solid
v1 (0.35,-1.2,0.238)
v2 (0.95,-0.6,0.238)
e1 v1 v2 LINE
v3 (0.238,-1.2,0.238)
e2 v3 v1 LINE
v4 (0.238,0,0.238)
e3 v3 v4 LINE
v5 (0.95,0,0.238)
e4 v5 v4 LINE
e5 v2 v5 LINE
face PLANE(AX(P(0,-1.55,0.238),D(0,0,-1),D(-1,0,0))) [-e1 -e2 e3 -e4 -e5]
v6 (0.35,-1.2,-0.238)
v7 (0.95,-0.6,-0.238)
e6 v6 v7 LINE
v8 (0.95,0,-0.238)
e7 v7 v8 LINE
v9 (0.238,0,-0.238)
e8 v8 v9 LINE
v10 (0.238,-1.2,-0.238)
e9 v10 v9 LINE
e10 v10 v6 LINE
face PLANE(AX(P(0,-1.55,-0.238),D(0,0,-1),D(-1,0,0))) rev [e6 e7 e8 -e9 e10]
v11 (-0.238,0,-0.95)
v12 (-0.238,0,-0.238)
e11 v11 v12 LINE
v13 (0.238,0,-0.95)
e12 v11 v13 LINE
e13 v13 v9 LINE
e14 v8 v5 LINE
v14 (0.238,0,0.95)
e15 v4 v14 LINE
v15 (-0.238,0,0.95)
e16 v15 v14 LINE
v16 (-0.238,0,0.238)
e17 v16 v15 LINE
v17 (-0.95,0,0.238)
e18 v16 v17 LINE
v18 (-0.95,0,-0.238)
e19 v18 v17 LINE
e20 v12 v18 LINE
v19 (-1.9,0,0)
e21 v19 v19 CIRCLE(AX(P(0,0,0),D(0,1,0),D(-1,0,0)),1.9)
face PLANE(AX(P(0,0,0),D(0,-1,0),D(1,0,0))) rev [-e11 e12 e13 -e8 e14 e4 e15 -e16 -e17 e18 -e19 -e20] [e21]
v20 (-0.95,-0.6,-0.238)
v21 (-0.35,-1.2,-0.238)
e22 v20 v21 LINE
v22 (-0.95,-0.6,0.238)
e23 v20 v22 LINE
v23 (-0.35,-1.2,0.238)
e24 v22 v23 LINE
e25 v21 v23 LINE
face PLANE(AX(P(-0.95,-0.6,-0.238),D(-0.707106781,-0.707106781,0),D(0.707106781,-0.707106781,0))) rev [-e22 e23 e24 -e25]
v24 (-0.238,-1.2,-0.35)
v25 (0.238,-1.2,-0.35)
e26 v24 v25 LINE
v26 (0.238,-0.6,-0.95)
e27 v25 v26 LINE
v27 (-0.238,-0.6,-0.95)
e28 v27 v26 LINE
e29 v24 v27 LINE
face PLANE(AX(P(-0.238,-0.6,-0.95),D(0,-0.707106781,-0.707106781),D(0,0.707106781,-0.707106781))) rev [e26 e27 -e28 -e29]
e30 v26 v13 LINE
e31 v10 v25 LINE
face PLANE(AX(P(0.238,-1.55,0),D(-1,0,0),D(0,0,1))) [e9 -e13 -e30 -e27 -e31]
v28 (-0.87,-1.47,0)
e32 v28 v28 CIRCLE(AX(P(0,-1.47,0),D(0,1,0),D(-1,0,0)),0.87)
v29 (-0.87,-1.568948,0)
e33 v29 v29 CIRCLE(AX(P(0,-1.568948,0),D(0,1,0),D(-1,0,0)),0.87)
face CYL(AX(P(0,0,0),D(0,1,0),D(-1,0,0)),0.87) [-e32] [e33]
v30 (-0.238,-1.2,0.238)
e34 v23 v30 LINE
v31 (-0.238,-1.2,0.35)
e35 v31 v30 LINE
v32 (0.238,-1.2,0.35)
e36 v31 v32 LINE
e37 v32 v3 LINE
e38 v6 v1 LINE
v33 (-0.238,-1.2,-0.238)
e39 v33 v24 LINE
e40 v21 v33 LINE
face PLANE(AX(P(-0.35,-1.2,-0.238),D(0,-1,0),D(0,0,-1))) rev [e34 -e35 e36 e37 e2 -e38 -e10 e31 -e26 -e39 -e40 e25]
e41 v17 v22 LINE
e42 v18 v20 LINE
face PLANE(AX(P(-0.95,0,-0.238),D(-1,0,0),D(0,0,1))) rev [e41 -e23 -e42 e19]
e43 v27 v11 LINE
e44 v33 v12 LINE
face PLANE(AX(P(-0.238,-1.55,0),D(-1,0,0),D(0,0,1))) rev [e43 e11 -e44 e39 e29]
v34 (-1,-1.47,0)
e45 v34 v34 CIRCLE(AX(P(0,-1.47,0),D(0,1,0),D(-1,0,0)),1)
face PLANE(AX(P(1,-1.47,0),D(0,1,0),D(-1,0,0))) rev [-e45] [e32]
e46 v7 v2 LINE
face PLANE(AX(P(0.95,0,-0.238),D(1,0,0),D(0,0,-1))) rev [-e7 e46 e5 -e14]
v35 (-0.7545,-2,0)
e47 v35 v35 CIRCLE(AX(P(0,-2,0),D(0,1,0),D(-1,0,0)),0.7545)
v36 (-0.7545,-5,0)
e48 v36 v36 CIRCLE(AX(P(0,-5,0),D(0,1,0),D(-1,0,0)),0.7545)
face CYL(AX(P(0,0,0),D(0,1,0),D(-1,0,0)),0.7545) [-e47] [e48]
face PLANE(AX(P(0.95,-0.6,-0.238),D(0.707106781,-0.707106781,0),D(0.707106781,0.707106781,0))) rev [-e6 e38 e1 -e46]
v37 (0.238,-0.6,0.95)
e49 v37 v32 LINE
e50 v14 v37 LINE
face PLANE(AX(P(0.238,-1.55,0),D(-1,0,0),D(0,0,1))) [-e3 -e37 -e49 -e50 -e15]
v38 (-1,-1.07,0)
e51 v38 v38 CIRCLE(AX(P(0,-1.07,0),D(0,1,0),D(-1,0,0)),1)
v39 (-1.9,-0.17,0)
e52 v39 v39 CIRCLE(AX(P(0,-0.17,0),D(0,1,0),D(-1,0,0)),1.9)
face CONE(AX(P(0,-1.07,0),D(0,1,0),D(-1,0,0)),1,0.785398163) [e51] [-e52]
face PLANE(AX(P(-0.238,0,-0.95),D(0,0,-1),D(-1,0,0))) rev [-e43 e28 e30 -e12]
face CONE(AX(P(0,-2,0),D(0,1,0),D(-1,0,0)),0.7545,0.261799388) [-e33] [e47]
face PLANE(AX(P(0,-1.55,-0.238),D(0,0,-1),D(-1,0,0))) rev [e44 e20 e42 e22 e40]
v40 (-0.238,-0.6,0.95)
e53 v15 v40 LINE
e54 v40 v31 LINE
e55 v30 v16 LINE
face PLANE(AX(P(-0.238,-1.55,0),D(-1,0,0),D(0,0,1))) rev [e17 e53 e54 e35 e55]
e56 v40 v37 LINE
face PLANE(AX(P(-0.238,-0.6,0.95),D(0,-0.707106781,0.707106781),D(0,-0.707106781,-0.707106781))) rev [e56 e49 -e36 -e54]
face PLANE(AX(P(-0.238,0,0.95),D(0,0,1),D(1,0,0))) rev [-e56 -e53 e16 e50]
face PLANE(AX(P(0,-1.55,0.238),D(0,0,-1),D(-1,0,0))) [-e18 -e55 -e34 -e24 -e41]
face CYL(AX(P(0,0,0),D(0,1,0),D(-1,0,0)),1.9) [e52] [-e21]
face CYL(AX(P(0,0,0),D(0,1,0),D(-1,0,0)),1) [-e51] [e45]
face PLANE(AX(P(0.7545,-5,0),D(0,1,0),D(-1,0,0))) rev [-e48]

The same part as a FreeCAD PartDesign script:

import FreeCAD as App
import Part
import Sketcher
from FreeCAD import Vector
Q = App.Units.Quantity

doc = App.newDocument("Part")
body = doc.addObject("PartDesign::Body", "Body")

sketch1 = body.newObject("Sketcher::SketchObject", "Sketch")
sketch1.AttachmentSupport = (doc.getObject("XY_Plane"), [""])
sketch1.MapMode = "FlatFace"
sketch1.addGeometry(Part.LineSegment(Vector(1.9, 0, 0), Vector(0, 0, 0)), False)
sketch1.addGeometry(Part.LineSegment(Vector(0, 0, 0), Vector(0, -5, 0)), False)
sketch1.addGeometry(Part.LineSegment(Vector(0, -5, 0), Vector(0.75, -5, 0)), False)
sketch1.addGeometry(Part.LineSegment(Vector(0.75, -5, 0), Vector(0.75, -2, 0)), False)
sketch1.addGeometry(Part.LineSegment(Vector(0.75, -2, 0), Vector(0.87, -1.57, 0)), False)
sketch1.addGeometry(Part.LineSegment(Vector(0.87, -1.57, 0), Vector(0.87, -1.47, 0)), False)
sketch1.addGeometry(Part.LineSegment(Vector(0.87, -1.47, 0), Vector(1, -1.47, 0)), False)
sketch1.addGeometry(Part.LineSegment(Vector(1, -1.47, 0), Vector(1, -1.07, 0)), False)
sketch1.addGeometry(Part.LineSegment(Vector(1, -1.07, 0), Vector(1.9, -0.17, 0)), False)
sketch1.addGeometry(Part.LineSegment(Vector(1.9, -0.17, 0), Vector(1.9, 0, 0)), False)
sketch1.addConstraint(Sketcher.Constraint("Coincident", 0, 2, 1, 1))
sketch1.addConstraint(Sketcher.Constraint("Coincident", 1, 2, 2, 1))
sketch1.addConstraint(Sketcher.Constraint("Coincident", 2, 2, 3, 1))
sketch1.addConstraint(Sketcher.Constraint("Coincident", 3, 2, 4, 1))
sketch1.addConstraint(Sketcher.Constraint("Coincident", 4, 2, 5, 1))
sketch1.addConstraint(Sketcher.Constraint("Coincident", 5, 2, 6, 1))
sketch1.addConstraint(Sketcher.Constraint("Coincident", 6, 2, 7, 1))
sketch1.addConstraint(Sketcher.Constraint("Coincident", 7, 2, 8, 1))
sketch1.addConstraint(Sketcher.Constraint("Coincident", 8, 2, 9, 1))
sketch1.addConstraint(Sketcher.Constraint("Coincident", 9, 2, 0, 1))
sketch1.addConstraint(Sketcher.Constraint("Horizontal", 0))
sketch1.addConstraint(Sketcher.Constraint("Vertical", 1))
sketch1.addConstraint(Sketcher.Constraint("Horizontal", 2))
sketch1.addConstraint(Sketcher.Constraint("Vertical", 3))
sketch1.addConstraint(Sketcher.Constraint("Vertical", 5))
sketch1.addConstraint(Sketcher.Constraint("Horizontal", 6))
sketch1.addConstraint(Sketcher.Constraint("Vertical", 7))
sketch1.addConstraint(Sketcher.Constraint("Vertical", 9))
sketch1.addConstraint(Sketcher.Constraint("Coincident", 0, 2, -1, 1))
sketch1.addConstraint(Sketcher.Constraint("DistanceY", 1, 2, 1, 1, Q("5 mm")))
sketch1.addConstraint(Sketcher.Constraint("DistanceY", 3, 1, 3, 2, Q("3 mm")))
sketch1.addConstraint(Sketcher.Constraint("Angle", 4, Q("75 deg")))
sketch1.addConstraint(Sketcher.Constraint("Angle", 8, Q("45 deg")))
sketch1.addConstraint(Sketcher.Constraint("DistanceX", 0, 2, 0, 1, Q("1.9 mm")))
sketch1.addConstraint(Sketcher.Constraint("DistanceY", 7, 1, 7, 2, Q("0.4 mm")))
sketch1.addConstraint(Sketcher.Constraint("DistanceX", -1, 1, 6, 2, Q("1 mm")))
sketch1.addConstraint(Sketcher.Constraint("DistanceX", 6, 1, 6, 2, Q("0.13 mm")))
sketch1.addConstraint(Sketcher.Constraint("DistanceY", 9, 1, 9, 2, Q("0.17 mm")))
sketch1.addConstraint(Sketcher.Constraint("DistanceX", 2, 1, 2, 2, Q("0.7545 mm")))
revolution = body.newObject("PartDesign::Revolution", "Revolution")
revolution.Profile = sketch1
revolution.ReferenceAxis = (sketch1, ["V_Axis"])
revolution.Angle = 360

sketch2 = body.newObject("Sketcher::SketchObject", "Sketch001")
sketch2.AttachmentSupport = (doc.getObject("XY_Plane"), [""])
sketch2.MapMode = "FlatFace"
sketch2.addGeometry(Part.LineSegment(Vector(-0.3, -1.2, 0), Vector(0.3, -1.2, 0)), False)
sketch2.addGeometry(Part.LineSegment(Vector(0.3, -1.2, 0), Vector(0.9, -0.6, 0)), False)
sketch2.addGeometry(Part.LineSegment(Vector(0.9, -0.6, 0), Vector(0.9, 0, 0)), False)
sketch2.addGeometry(Part.LineSegment(Vector(0.9, 0, 0), Vector(-0.9, 0, 0)), False)
sketch2.addGeometry(Part.LineSegment(Vector(-0.9, 0, 0), Vector(-0.9, -0.6, 0)), False)
sketch2.addGeometry(Part.LineSegment(Vector(-0.9, -0.6, 0), Vector(-0.3, -1.2, 0)), False)
sketch2.addConstraint(Sketcher.Constraint("Coincident", 0, 2, 1, 1))
sketch2.addConstraint(Sketcher.Constraint("Coincident", 1, 2, 2, 1))
sketch2.addConstraint(Sketcher.Constraint("Coincident", 2, 2, 3, 1))
sketch2.addConstraint(Sketcher.Constraint("Coincident", 3, 2, 4, 1))
sketch2.addConstraint(Sketcher.Constraint("Coincident", 4, 2, 5, 1))
sketch2.addConstraint(Sketcher.Constraint("Coincident", 5, 2, 0, 1))
sketch2.addConstraint(Sketcher.Constraint("Horizontal", 0))
sketch2.addConstraint(Sketcher.Constraint("Vertical", 2))
sketch2.addConstraint(Sketcher.Constraint("Horizontal", 3))
sketch2.addConstraint(Sketcher.Constraint("Vertical", 4))
sketch2.addConstraint(Sketcher.Constraint("Symmetric", 2, 2, 3, 2, -1, 1))
sketch2.addConstraint(Sketcher.Constraint("Perpendicular", 1, 5))
sketch2.addConstraint(Sketcher.Constraint("Horizontal", 1, 2, 4, 2))
sketch2.addConstraint(Sketcher.Constraint("Equal", 1, 5))
sketch2.addConstraint(Sketcher.Constraint("DistanceX", 0, 1, 0, 2, Q("0.7 mm")))
sketch2.addConstraint(Sketcher.Constraint("DistanceX", 3, 2, 3, 1, Q("1.9 mm")))
sketch2.addConstraint(Sketcher.Constraint("DistanceY", 2, 1, 2, 2, Q("0.6 mm")))
pocket1 = body.newObject("PartDesign::Pocket", "Pocket")
pocket1.Profile = sketch2
pocket1.Type = "TwoLengths"
pocket1.Length = 0.238
pocket1.Length2 = 0.238
pocket1.Reversed = True

sketch3 = body.newObject("Sketcher::SketchObject", "Sketch002")
sketch3.AttachmentSupport = (doc.getObject("YZ_Plane"), [""])
sketch3.MapMode = "FlatFace"
sketch3.addGeometry(Part.LineSegment(Vector(-1.2, 0.3, 0), Vector(-1.2, -0.3, 0)), False)
sketch3.addGeometry(Part.LineSegment(Vector(-1.2, -0.3, 0), Vector(-0.6, -0.9, 0)), False)
sketch3.addGeometry(Part.LineSegment(Vector(-0.6, -0.9, 0), Vector(0, -0.9, 0)), False)
sketch3.addGeometry(Part.LineSegment(Vector(0, -0.9, 0), Vector(0, 0.9, 0)), False)
sketch3.addGeometry(Part.LineSegment(Vector(0, 0.9, 0), Vector(-0.6, 0.9, 0)), False)
sketch3.addGeometry(Part.LineSegment(Vector(-0.6, 0.9, 0), Vector(-1.2, 0.3, 0)), False)
sketch3.addConstraint(Sketcher.Constraint("Coincident", 0, 2, 1, 1))
sketch3.addConstraint(Sketcher.Constraint("Coincident", 1, 2, 2, 1))
sketch3.addConstraint(Sketcher.Constraint("Coincident", 2, 2, 3, 1))
sketch3.addConstraint(Sketcher.Constraint("Coincident", 3, 2, 4, 1))
sketch3.addConstraint(Sketcher.Constraint("Coincident", 4, 2, 5, 1))
sketch3.addConstraint(Sketcher.Constraint("Coincident", 5, 2, 0, 1))
sketch3.addConstraint(Sketcher.Constraint("Vertical", 0))
sketch3.addConstraint(Sketcher.Constraint("Horizontal", 2))
sketch3.addConstraint(Sketcher.Constraint("Vertical", 3))
sketch3.addConstraint(Sketcher.Constraint("Horizontal", 4))
sketch3.addConstraint(Sketcher.Constraint("Symmetric", 2, 2, 3, 2, -1, 1))
sketch3.addConstraint(Sketcher.Constraint("Perpendicular", 1, 5))
sketch3.addConstraint(Sketcher.Constraint("Vertical", 1, 2, 4, 2))
sketch3.addConstraint(Sketcher.Constraint("Equal", 1, 5))
sketch3.addConstraint(Sketcher.Constraint("DistanceX", 2, 1, 2, 2, Q("0.6 mm")))
sketch3.addConstraint(Sketcher.Constraint("DistanceY", 0, 2, 0, 1, Q("0.7 mm")))
sketch3.addConstraint(Sketcher.Constraint("DistanceY", 3, 1, 3, 2, Q("1.9 mm")))
pocket2 = body.newObject("PartDesign::Pocket", "Pocket001")
pocket2.Profile = sketch3
pocket2.Type = "TwoLengths"
pocket2.Length = 0.238
pocket2.Length2 = 0.238
pocket2.Reversed = True

doc.recompute()
